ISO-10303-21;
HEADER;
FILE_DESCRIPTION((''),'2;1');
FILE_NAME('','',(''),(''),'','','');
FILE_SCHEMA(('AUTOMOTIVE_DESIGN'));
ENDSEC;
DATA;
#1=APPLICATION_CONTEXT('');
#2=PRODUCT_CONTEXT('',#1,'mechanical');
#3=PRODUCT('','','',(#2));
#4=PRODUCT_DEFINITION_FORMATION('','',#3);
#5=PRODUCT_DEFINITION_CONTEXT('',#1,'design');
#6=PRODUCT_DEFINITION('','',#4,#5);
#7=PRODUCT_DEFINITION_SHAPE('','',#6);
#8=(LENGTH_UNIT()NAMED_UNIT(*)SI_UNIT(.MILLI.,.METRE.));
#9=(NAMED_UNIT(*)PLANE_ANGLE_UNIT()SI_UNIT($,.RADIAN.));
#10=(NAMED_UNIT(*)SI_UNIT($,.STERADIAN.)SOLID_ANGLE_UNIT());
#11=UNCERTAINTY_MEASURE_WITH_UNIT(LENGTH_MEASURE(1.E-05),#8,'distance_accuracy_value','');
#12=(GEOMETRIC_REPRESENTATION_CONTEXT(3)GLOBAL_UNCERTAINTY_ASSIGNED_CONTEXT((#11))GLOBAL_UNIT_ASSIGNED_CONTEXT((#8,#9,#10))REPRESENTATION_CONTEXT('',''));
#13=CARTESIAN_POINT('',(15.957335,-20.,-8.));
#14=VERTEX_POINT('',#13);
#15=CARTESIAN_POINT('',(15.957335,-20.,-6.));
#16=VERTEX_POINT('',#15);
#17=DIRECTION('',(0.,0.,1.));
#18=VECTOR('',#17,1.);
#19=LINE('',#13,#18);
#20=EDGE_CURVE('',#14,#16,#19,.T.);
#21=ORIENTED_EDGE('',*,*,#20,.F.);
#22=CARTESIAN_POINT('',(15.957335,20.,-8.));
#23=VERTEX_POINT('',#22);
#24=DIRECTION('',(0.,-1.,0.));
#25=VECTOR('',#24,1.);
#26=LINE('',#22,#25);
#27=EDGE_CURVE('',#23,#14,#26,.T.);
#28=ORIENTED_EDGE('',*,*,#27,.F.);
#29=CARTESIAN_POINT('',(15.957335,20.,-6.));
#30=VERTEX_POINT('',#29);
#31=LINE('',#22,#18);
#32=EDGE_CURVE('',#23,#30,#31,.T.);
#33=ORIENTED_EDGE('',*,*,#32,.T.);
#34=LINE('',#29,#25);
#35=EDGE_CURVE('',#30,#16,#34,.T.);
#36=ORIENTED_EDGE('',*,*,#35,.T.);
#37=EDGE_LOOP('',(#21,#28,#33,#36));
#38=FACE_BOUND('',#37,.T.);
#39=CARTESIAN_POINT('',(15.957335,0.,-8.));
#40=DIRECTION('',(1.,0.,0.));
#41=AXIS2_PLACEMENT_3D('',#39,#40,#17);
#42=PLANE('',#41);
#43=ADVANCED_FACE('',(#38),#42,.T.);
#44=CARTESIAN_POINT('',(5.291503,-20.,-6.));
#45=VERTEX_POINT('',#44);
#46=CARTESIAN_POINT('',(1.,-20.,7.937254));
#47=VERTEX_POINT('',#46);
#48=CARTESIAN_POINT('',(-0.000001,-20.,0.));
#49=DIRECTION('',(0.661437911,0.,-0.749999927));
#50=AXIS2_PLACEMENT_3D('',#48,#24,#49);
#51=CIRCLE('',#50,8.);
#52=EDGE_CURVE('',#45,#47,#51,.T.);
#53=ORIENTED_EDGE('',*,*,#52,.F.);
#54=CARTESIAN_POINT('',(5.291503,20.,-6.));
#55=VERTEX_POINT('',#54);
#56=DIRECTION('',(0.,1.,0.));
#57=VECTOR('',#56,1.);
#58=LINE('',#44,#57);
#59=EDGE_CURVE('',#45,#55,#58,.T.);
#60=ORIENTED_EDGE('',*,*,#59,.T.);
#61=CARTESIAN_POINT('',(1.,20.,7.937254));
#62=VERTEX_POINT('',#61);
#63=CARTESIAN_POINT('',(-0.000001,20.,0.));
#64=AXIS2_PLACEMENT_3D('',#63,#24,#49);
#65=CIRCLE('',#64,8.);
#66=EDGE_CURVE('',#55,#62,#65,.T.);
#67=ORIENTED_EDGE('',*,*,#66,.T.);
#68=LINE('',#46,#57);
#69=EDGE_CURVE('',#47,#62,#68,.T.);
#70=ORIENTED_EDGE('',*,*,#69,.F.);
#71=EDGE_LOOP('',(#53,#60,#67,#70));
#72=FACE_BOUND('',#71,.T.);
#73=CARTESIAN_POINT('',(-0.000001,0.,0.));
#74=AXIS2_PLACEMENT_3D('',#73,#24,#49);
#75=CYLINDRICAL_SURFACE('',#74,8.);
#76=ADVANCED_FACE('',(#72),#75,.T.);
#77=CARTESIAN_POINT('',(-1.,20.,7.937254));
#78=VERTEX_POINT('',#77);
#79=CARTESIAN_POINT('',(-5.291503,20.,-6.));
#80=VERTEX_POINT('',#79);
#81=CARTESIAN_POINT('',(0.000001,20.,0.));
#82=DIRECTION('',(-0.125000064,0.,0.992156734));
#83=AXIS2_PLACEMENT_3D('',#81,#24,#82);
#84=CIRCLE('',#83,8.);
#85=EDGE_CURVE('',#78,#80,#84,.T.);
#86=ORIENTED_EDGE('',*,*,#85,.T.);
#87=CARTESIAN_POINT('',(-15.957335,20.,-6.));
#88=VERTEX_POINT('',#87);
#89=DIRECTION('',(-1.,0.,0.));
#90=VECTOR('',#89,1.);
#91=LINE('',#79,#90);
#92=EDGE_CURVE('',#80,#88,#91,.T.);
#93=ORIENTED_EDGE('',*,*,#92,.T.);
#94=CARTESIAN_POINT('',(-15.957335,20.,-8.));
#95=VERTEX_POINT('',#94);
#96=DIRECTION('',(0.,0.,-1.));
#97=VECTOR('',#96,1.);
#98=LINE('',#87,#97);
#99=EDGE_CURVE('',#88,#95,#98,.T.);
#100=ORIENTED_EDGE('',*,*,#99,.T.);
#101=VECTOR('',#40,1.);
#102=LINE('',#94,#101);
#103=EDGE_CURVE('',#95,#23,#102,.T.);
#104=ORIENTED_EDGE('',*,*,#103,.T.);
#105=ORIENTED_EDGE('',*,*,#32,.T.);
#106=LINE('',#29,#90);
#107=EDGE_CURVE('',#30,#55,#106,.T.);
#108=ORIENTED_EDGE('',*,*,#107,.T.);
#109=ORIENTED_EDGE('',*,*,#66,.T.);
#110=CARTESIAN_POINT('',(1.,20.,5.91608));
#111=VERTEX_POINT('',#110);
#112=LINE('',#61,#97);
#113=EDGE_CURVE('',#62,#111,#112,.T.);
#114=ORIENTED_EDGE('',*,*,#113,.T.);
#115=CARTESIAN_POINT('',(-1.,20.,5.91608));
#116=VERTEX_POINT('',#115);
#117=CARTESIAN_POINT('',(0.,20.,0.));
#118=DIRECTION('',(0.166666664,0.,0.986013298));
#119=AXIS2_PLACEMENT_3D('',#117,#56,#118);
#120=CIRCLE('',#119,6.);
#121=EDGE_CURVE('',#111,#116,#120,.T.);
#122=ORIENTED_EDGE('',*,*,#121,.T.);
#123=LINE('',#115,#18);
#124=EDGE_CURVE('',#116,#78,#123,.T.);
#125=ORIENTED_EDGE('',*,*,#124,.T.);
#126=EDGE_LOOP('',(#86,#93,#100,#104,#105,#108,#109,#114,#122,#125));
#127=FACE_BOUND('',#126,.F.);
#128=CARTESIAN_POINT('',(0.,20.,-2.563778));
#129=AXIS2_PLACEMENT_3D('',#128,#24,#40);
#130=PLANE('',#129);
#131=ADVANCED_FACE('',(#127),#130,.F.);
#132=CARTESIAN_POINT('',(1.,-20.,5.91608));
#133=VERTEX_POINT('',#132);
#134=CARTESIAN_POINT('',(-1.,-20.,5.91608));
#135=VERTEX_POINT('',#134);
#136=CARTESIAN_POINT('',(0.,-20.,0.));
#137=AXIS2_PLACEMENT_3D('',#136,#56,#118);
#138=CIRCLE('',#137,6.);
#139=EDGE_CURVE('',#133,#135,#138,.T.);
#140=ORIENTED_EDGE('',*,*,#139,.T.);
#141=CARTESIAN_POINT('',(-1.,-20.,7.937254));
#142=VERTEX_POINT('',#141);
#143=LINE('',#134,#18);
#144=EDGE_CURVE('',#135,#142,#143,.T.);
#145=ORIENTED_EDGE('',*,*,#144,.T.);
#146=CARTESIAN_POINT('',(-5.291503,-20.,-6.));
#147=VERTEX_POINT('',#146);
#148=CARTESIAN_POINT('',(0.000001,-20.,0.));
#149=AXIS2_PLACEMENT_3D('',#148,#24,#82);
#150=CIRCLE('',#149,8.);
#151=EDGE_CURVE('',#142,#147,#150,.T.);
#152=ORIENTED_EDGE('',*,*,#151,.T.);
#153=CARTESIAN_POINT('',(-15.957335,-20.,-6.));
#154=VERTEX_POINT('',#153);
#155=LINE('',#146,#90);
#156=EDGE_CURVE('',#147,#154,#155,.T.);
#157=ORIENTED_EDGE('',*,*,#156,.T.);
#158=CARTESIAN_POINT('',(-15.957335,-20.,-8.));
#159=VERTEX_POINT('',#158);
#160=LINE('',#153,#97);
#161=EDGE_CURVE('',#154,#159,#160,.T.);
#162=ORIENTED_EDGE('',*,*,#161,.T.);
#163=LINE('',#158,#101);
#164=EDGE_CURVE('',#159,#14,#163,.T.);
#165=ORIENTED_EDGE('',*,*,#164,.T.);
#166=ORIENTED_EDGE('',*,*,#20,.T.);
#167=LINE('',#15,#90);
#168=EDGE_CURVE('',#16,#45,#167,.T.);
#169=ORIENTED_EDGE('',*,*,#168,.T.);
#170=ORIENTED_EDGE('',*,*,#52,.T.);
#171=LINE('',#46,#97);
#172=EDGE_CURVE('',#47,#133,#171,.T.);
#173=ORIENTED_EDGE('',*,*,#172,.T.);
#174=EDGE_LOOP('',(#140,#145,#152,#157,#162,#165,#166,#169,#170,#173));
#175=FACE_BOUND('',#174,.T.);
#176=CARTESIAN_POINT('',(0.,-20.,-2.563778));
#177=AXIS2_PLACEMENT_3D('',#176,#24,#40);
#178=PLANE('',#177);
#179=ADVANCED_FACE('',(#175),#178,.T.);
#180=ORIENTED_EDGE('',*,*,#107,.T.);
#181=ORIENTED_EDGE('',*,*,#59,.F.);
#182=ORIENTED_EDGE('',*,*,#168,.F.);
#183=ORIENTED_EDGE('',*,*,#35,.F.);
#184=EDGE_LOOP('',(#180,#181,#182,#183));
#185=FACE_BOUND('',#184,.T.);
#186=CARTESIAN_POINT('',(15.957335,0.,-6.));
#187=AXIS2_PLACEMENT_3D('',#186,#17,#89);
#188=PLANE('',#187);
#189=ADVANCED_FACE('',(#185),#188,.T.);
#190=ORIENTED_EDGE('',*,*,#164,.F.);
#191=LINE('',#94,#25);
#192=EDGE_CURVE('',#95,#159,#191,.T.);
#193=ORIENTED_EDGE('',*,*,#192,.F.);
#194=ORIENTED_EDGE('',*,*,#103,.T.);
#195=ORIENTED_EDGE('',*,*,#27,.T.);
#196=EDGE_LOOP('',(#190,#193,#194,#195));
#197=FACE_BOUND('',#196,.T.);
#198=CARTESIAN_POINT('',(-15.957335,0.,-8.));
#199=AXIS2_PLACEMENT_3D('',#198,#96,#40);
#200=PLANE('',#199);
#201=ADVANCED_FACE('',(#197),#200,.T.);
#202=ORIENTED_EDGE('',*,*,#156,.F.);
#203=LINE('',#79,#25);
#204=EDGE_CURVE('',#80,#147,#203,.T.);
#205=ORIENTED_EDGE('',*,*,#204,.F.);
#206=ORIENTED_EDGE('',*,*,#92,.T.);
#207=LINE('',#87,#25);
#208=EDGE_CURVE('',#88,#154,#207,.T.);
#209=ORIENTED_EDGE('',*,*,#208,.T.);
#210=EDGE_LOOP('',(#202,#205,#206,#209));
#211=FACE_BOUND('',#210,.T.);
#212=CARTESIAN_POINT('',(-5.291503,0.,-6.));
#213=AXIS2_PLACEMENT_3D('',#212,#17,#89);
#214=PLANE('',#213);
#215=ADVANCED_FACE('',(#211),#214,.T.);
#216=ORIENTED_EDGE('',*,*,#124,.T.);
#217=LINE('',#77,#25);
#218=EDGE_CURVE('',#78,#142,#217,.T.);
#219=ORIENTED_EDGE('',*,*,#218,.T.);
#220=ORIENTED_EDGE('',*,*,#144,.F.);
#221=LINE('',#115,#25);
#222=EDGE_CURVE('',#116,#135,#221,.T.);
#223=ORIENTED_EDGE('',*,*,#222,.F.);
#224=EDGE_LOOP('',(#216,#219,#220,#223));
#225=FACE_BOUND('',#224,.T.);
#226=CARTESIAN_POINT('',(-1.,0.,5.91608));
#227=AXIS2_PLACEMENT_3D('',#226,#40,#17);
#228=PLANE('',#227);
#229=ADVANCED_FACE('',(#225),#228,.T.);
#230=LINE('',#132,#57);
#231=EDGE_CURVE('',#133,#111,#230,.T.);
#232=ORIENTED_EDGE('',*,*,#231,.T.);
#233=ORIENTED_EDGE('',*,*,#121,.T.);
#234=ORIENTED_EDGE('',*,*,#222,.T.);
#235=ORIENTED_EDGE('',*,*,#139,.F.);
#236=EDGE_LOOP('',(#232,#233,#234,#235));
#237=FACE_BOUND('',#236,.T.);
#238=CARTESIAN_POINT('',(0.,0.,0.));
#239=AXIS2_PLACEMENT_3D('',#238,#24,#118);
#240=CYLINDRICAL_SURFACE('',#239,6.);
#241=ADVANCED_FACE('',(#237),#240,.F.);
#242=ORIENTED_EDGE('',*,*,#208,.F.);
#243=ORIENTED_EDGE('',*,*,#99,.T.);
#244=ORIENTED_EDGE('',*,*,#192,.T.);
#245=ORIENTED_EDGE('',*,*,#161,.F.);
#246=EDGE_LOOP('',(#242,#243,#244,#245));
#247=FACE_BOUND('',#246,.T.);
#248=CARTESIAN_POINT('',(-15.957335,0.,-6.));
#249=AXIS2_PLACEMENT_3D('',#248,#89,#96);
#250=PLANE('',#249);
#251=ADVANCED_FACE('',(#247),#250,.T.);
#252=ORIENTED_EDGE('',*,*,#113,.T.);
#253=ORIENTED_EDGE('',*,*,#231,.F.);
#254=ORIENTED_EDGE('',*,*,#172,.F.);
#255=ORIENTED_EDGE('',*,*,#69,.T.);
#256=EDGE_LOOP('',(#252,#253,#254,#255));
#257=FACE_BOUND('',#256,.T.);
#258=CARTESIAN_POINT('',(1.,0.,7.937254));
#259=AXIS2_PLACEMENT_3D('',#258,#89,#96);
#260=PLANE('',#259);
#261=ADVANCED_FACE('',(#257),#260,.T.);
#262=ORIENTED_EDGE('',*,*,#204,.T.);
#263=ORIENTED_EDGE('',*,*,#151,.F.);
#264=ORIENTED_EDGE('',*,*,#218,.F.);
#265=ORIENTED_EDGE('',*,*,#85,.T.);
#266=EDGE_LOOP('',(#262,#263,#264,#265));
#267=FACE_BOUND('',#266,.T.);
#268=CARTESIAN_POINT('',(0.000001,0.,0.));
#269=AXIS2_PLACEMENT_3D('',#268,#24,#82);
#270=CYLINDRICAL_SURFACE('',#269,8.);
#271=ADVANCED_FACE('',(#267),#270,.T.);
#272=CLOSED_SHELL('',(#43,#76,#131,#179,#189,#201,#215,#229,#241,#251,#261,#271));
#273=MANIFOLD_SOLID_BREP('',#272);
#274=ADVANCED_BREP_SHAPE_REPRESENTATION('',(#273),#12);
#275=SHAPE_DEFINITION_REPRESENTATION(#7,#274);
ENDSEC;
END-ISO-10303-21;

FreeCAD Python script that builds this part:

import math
import FreeCAD as App
import Part
import Sketcher
Q = App.Units.Quantity

doc = App.newDocument("Part")
body = doc.addObject("PartDesign::Body", "Body")

sketch1 = body.newObject("Sketcher::SketchObject", "Sketch")
sketch1.AttachmentSupport = (doc.getObject("XZ_Plane"), [""])
sketch1.MapMode = "FlatFace"
sketch1.addGeometry(Part.ArcOfCircle(Part.Circle(App.Vector(0, 0, 0), App.Vector(0, 0, 1), 6), math.radians(100), math.radians(440)), False)
sketch1.addGeometry(Part.LineSegment(App.Vector(-1, 5.9, 0), App.Vector(-1, 7.9, 0)), False)
sketch1.addGeometry(Part.ArcOfCircle(Part.Circle(App.Vector(0, 0, 0), App.Vector(0, 0, 1), 8), math.radians(97), math.radians(229)), False)
sketch1.addGeometry(Part.LineSegment(App.Vector(-5.3, -6, 0), App.Vector(-16, -6, 0)), False)
sketch1.addGeometry(Part.LineSegment(App.Vector(-16, -6, 0), App.Vector(-16, -8, 0)), False)
sketch1.addGeometry(Part.LineSegment(App.Vector(-16, -8, 0), App.Vector(16, -8, 0)), False)
sketch1.addGeometry(Part.LineSegment(App.Vector(16, -8, 0), App.Vector(16, -6, 0)), False)
sketch1.addGeometry(Part.LineSegment(App.Vector(16, -6, 0), App.Vector(5.3, -6, 0)), False)
sketch1.addGeometry(Part.ArcOfCircle(Part.Circle(App.Vector(0, 0, 0), App.Vector(0, 0, 1), 8), math.radians(-49), math.radians(83)), False)
sketch1.addGeometry(Part.LineSegment(App.Vector(1, 7.9, 0), App.Vector(1, 5.9, 0)), False)
sketch1.addConstraint(Sketcher.Constraint("Coincident", 0, 1, 1, 1))
sketch1.addConstraint(Sketcher.Constraint("Coincident", 1, 2, 2, 1))
sketch1.addConstraint(Sketcher.Constraint("Coincident", 2, 2, 3, 1))
sketch1.addConstraint(Sketcher.Constraint("Coincident", 3, 2, 4, 1))
sketch1.addConstraint(Sketcher.Constraint("Coincident", 4, 2, 5, 1))
sketch1.addConstraint(Sketcher.Constraint("Coincident", 5, 2, 6, 1))
sketch1.addConstraint(Sketcher.Constraint("Coincident", 6, 2, 7, 1))
sketch1.addConstraint(Sketcher.Constraint("Coincident", 7, 2, 8, 1))
sketch1.addConstraint(Sketcher.Constraint("Coincident", 8, 2, 9, 1))
sketch1.addConstraint(Sketcher.Constraint("Coincident", 9, 2, 0, 2))
sketch1.addConstraint(Sketcher.Constraint("Vertical", 1))
sketch1.addConstraint(Sketcher.Constraint("Horizontal", 3))
sketch1.addConstraint(Sketcher.Constraint("Vertical", 4))
sketch1.addConstraint(Sketcher.Constraint("Horizontal", 5))
sketch1.addConstraint(Sketcher.Constraint("Vertical", 6))
sketch1.addConstraint(Sketcher.Constraint("Horizontal", 7))
sketch1.addConstraint(Sketcher.Constraint("Vertical", 9))
sketch1.addConstraint(Sketcher.Constraint("Coincident", 0, 3, -1, 1))
sketch1.addConstraint(Sketcher.Constraint("Coincident", 2, 3, -1, 1))
sketch1.addConstraint(Sketcher.Constraint("Coincident", 8, 3, -1, 1))
sketch1.addConstraint(Sketcher.Constraint("Equal", 2, 8))
sketch1.addConstraint(Sketcher.Constraint("Symmetric", 3, 2, 6, 2, -2))
sketch1.addConstraint(Sketcher.Constraint("Horizontal", 1, 2, 8, 2))
sketch1.addConstraint(Sketcher.Constraint("Radius", 0, Q("6 mm")))
sketch1.addConstraint(Sketcher.Constraint("Radius", 2, Q("8 mm")))
sketch1.addConstraint(Sketcher.Constraint("DistanceY", 4, 2, 4, 1, Q("2 mm")))
sketch1.addConstraint(Sketcher.Constraint("DistanceX", 0, 1, -1, 1, Q("1 mm")))
sketch1.addConstraint(Sketcher.Constraint("DistanceY", 2, 2, -1, 1, Q("6 mm")))
sketch1.addConstraint(Sketcher.Constraint("DistanceX", 5, 1, 5, 2, Q("31.91467 mm")))
pad1 = body.newObject("PartDesign::Pad", "Pad")
pad1.Profile = sketch1
pad1.Length = 40
pad1.Midplane = True

doc.recompute()
